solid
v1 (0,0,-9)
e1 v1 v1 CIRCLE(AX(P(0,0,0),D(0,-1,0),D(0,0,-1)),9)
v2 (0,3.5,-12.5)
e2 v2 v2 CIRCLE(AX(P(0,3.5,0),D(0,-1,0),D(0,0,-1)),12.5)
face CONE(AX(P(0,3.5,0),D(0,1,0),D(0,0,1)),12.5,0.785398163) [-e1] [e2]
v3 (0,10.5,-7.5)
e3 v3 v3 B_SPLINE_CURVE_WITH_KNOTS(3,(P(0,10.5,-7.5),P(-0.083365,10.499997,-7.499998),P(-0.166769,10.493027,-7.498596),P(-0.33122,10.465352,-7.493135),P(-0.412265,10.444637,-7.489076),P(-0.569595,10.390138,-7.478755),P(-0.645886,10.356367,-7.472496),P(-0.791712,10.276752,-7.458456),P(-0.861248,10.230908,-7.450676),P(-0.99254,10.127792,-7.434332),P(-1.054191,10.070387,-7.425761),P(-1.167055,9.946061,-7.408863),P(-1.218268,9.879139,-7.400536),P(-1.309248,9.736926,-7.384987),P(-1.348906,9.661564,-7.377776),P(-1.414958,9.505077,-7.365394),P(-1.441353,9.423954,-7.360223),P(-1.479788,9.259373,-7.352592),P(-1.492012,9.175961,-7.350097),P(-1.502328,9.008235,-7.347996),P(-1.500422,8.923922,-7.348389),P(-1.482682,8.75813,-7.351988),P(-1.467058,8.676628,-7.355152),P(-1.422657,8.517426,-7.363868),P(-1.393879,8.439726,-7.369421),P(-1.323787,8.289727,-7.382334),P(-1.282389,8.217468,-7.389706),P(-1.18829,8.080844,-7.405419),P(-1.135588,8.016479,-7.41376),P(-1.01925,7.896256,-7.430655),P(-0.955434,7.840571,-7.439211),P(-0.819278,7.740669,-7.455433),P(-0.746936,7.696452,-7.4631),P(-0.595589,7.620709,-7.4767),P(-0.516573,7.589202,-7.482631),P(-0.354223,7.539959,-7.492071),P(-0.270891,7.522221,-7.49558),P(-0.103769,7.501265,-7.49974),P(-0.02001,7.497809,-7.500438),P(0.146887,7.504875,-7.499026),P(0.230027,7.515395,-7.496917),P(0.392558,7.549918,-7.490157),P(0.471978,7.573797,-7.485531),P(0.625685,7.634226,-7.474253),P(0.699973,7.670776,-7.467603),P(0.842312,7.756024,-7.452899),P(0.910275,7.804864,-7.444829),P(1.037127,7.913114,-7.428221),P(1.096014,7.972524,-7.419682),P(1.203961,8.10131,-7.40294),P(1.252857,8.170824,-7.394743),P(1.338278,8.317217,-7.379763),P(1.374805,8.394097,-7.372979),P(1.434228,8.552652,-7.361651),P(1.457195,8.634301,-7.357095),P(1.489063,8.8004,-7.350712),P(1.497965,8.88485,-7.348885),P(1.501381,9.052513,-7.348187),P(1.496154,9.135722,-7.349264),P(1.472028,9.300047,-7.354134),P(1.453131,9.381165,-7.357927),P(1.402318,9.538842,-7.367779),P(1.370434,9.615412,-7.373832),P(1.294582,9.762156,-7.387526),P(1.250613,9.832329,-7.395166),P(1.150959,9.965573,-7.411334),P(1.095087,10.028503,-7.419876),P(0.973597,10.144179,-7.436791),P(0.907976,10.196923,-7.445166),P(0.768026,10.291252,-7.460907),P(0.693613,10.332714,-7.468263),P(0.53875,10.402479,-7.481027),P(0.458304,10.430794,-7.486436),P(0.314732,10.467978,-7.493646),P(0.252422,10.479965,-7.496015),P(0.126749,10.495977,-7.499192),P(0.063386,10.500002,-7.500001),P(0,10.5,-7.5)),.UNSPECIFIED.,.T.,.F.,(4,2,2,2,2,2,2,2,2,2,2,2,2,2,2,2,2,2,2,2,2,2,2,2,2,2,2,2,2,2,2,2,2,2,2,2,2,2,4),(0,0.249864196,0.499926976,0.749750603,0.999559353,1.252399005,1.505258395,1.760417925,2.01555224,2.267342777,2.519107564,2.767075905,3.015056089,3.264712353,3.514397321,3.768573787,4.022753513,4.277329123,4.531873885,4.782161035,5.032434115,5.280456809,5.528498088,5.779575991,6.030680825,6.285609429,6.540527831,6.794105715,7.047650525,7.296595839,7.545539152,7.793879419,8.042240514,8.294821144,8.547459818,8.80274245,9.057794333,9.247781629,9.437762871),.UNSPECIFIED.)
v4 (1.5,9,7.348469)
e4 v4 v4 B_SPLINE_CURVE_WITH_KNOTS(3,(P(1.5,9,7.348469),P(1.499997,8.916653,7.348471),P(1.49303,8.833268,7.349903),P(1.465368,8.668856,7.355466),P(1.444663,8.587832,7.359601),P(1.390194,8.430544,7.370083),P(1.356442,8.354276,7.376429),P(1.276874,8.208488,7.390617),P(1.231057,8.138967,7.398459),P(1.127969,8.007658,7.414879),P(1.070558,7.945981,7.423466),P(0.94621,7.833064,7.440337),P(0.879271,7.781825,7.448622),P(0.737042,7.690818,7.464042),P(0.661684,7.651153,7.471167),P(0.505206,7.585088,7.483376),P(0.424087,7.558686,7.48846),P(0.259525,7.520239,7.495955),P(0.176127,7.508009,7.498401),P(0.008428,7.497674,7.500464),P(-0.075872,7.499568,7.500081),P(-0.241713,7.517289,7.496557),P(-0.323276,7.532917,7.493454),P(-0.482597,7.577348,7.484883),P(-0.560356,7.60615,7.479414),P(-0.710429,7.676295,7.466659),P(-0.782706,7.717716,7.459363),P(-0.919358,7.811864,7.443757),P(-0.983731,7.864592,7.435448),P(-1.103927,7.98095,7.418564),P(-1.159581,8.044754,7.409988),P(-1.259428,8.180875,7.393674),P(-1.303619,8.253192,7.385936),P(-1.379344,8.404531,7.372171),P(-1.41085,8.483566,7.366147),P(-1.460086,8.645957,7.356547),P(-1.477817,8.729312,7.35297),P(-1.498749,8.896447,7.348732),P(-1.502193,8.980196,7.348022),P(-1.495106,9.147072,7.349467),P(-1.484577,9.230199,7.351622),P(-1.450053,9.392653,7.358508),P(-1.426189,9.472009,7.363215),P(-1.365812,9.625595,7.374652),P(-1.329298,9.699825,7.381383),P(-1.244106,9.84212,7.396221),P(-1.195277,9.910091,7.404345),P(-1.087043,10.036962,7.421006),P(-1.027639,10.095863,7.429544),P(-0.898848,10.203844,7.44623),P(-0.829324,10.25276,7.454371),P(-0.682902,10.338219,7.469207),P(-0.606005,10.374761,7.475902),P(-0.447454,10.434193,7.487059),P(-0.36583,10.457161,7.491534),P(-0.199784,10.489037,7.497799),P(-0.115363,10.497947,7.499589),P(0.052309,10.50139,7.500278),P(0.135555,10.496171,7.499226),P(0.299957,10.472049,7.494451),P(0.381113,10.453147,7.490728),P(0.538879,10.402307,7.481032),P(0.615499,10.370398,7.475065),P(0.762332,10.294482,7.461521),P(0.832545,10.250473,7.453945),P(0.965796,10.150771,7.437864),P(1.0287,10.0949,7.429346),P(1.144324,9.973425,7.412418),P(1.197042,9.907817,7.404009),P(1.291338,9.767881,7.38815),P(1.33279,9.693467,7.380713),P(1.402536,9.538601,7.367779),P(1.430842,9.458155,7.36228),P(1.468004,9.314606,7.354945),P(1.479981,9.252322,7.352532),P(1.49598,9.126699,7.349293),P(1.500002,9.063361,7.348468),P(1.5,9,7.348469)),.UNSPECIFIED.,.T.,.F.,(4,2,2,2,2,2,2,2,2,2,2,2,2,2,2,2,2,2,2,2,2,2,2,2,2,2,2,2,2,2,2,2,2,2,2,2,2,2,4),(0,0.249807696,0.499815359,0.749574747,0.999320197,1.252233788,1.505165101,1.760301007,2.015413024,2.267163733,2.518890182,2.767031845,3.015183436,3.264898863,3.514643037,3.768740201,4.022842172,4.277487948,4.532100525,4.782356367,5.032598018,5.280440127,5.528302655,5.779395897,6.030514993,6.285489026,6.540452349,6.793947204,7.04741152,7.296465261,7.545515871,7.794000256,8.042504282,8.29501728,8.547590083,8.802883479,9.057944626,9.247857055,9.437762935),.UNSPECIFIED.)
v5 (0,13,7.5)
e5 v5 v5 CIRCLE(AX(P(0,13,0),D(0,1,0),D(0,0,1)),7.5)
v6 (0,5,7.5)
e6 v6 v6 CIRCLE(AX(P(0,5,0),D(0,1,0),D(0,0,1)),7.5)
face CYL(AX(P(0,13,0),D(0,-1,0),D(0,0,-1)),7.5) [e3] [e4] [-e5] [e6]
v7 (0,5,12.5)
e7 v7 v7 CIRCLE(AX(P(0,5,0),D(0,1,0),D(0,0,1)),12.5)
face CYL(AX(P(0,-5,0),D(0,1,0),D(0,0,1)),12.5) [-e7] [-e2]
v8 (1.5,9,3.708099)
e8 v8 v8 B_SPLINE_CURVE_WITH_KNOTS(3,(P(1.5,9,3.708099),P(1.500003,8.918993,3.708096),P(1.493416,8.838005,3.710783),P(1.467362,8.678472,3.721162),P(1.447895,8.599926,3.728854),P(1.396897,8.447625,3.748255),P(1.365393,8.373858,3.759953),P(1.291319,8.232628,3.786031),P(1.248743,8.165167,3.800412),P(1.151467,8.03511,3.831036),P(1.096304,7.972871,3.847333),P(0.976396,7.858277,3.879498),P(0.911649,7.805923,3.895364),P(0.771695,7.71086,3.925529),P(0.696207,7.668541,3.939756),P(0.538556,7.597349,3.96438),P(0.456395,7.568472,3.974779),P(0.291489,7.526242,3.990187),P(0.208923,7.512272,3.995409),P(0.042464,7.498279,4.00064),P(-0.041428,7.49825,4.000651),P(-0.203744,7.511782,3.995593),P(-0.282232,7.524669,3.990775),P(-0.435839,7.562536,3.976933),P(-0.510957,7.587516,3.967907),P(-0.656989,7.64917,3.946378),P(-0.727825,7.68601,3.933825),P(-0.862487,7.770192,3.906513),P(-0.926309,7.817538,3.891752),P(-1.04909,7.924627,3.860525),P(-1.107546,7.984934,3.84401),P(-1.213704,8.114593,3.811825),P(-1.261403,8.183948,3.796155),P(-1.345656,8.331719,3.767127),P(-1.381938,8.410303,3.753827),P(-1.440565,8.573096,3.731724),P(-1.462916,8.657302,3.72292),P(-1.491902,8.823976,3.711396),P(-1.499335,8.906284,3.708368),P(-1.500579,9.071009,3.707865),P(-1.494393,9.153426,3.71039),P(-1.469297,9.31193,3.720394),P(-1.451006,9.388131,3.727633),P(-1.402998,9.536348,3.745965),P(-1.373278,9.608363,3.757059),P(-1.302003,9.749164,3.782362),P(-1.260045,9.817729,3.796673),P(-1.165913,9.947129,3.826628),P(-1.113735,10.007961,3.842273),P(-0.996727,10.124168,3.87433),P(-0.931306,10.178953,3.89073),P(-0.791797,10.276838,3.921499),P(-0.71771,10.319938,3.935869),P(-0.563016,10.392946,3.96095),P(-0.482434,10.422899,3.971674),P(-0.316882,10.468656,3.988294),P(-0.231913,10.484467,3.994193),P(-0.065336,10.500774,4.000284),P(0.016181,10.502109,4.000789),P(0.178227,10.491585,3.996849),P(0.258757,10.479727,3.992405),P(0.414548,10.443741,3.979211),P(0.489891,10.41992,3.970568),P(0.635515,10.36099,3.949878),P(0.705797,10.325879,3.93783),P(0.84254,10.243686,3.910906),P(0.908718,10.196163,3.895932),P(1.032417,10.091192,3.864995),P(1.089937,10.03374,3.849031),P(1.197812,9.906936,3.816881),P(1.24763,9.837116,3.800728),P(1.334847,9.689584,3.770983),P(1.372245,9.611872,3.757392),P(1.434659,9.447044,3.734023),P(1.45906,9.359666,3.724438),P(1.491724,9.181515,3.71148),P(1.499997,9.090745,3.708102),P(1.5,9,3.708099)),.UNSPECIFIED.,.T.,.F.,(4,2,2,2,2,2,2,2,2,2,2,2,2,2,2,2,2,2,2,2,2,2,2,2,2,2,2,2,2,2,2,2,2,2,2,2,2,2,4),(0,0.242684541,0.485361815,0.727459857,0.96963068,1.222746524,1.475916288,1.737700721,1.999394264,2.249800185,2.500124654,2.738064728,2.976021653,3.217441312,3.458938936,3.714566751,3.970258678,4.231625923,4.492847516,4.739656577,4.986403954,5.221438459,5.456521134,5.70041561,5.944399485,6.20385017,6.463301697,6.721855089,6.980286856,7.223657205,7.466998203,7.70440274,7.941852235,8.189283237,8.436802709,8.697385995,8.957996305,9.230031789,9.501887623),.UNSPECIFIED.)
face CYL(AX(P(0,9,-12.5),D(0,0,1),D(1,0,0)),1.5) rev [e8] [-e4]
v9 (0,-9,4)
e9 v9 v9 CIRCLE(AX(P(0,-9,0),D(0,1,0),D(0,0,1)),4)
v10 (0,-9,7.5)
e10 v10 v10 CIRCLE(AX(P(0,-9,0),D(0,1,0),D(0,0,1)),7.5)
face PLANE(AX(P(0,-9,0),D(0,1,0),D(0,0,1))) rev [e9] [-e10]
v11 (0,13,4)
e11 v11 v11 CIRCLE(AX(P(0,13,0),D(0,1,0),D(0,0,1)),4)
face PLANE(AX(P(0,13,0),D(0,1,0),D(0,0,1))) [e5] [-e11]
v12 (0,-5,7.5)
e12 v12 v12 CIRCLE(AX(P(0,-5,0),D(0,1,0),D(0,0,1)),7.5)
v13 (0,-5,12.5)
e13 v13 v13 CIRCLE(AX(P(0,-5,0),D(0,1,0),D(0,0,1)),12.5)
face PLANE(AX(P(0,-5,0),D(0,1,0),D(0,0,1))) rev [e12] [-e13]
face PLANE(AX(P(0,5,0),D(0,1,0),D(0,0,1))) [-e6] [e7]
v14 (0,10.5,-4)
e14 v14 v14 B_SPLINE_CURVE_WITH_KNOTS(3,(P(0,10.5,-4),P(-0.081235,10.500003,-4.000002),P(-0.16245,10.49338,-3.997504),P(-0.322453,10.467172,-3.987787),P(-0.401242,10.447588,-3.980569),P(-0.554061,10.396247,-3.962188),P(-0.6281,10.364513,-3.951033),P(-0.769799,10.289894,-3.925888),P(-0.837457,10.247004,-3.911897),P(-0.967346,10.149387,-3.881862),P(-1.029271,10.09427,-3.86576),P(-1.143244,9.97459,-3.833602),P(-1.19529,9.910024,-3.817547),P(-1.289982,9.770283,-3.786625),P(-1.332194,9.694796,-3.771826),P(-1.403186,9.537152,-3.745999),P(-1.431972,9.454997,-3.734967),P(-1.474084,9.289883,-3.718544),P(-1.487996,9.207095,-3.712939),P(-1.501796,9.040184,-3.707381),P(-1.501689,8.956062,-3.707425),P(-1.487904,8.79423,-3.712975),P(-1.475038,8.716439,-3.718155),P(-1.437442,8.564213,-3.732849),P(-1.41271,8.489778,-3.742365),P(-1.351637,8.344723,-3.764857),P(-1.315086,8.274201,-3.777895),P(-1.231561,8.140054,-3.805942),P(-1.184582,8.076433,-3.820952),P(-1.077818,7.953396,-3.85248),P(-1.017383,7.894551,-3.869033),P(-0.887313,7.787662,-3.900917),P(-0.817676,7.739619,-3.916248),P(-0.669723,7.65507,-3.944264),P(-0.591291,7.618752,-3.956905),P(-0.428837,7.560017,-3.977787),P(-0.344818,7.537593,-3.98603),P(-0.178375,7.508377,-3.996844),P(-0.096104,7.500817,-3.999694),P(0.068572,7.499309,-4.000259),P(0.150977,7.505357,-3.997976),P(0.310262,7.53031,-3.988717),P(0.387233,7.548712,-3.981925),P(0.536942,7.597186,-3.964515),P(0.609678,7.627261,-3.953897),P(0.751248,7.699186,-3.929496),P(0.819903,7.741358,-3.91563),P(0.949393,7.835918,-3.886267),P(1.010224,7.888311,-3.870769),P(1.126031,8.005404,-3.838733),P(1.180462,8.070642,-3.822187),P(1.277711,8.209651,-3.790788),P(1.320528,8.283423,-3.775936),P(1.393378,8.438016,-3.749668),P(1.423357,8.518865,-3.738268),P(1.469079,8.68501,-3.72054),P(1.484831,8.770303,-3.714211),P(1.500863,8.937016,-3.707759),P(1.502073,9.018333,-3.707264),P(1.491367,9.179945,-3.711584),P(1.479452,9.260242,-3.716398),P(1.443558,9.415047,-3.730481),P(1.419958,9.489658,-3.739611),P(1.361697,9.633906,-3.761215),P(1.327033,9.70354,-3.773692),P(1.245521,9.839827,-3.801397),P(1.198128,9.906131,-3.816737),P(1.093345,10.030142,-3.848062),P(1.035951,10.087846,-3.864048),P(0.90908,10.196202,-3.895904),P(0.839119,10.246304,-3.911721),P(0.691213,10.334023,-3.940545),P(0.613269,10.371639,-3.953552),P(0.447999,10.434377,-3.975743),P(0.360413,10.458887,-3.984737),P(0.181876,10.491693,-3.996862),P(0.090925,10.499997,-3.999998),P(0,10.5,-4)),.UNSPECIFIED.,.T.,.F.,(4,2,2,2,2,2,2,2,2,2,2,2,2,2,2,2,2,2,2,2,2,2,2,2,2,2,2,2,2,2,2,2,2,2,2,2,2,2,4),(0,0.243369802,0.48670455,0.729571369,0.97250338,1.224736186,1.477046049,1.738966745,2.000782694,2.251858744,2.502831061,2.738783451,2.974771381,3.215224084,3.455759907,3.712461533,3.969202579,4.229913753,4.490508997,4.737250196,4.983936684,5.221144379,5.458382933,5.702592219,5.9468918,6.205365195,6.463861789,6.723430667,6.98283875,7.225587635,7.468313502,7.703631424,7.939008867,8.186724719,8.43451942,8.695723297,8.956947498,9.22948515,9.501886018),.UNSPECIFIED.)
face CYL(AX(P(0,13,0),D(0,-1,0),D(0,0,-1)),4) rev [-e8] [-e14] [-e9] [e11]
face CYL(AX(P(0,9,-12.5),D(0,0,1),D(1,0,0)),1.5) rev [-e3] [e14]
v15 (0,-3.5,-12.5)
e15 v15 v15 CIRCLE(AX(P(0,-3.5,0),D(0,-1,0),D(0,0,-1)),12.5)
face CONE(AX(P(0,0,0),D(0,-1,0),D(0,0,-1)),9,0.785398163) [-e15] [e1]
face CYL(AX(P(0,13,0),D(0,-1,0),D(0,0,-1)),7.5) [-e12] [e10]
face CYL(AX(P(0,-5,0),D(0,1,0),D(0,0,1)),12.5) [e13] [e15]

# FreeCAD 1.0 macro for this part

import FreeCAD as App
import Part
import Sketcher

V = App.Vector


def add_polygon(sketch, points):
    """Adds a closed chain of lines whose ends are joined by coincident constraints."""
    first, n = sketch.GeometryCount, len(points)
    for a, b in zip(points, points[1:] + points[:1]):
        sketch.addGeometry(Part.LineSegment(App.Vector(*a, 0), App.Vector(*b, 0)), False)
    for i in range(n):
        sketch.addConstraint(Sketcher.Constraint("Coincident", first + i, 2, first + (i + 1) % n, 1))

doc = App.newDocument("Part")
body = doc.addObject("PartDesign::Body", "Body")

# Sketch on XZ plane
sketch1 = body.newObject("Sketcher::SketchObject", "Sketch")
sketch1.AttachmentSupport = (doc.getObject("XZ_Plane"), [""])
sketch1.MapMode = "FlatFace"
sketch1.addGeometry(Part.Circle(V(0, 0, 0), V(0, 0, 1), 7.5), False)
sketch1.addGeometry(Part.Circle(V(0, 0, 0), V(0, 0, 1), 4), False)
sketch1.addConstraint(Sketcher.Constraint("Coincident", 0, 3, -1, 1))
sketch1.addConstraint(Sketcher.Constraint("Coincident", 1, 3, -1, 1))
sketch1.addConstraint(Sketcher.Constraint("Diameter", 0, 15.0))
sketch1.addConstraint(Sketcher.Constraint("Diameter", 1, 8.0))
pad1 = body.newObject("PartDesign::Pad", "Pad")
pad1.Profile = sketch1
pad1.Type = "TwoLengths"
pad1.Length = 13
pad1.Length2 = 9
pad1.Reversed = True

# Sketch on XZ plane
sketch2 = body.newObject("Sketcher::SketchObject", "Sketch001")
sketch2.AttachmentSupport = (doc.getObject("XZ_Plane"), [""])
sketch2.MapMode = "FlatFace"
sketch2.addGeometry(Part.Circle(V(0, 0, 0), V(0, 0, 1), 12), False)
sketch2.addGeometry(Part.Circle(V(0, 0, 0), V(0, 0, 1), 8), False)
sketch2.addConstraint(Sketcher.Constraint("Coincident", 0, 3, -1, 1))
sketch2.addConstraint(Sketcher.Constraint("Coincident", 1, 3, -1, 1))
sketch2.addConstraint(Sketcher.Constraint("Diameter", 0, 25.0))
sketch2.addConstraint(Sketcher.Constraint("Diameter", 1, 15.0))
pad2 = body.newObject("PartDesign::Pad", "Pad001")
pad2.Profile = sketch2
pad2.Type = "TwoLengths"
pad2.Length = 5
pad2.Length2 = 5
pad2.Reversed = True

# Sketch on YZ plane
sketch3 = body.newObject("Sketcher::SketchObject", "Sketch002")
sketch3.AttachmentSupport = (doc.getObject("YZ_Plane"), [""])
sketch3.MapMode = "FlatFace"
add_polygon(sketch3, [(0, 9), (3.5, 12.5), (-3.5, 12.5)])  # lines 0-2
sketch3.addConstraint(Sketcher.Constraint("Horizontal", 1))
sketch3.addConstraint(Sketcher.Constraint("PointOnObject", 2, 2, -2))
sketch3.addConstraint(Sketcher.Constraint("Perpendicular", 0, 2))
sketch3.addConstraint(Sketcher.Constraint("Equal", 0, 2))
sketch3.addConstraint(Sketcher.Constraint("DistanceX", 1, 2, 1, 1, 7.0))
sketch3.addConstraint(Sketcher.Constraint("DistanceY", -1, 1, 2, 2, 9.0))
groove = body.newObject("PartDesign::Groove", "Groove")
groove.Profile = sketch3
groove.ReferenceAxis = (sketch3, ["H_Axis"])
groove.Angle = 360

# Sketch on XY plane
sketch4 = body.newObject("Sketcher::SketchObject", "Sketch003")
sketch4.AttachmentSupport = (doc.getObject("XY_Plane"), [""])
sketch4.MapMode = "FlatFace"
sketch4.addGeometry(Part.Circle(V(0, 9, 0), V(0, 0, 1), 1.5), False)
sketch4.addConstraint(Sketcher.Constraint("PointOnObject", 0, 3, -2))
sketch4.addConstraint(Sketcher.Constraint("Diameter", 0, 3.0))
sketch4.addConstraint(Sketcher.Constraint("DistanceY", -1, 1, 0, 3, 9.0))
pocket1 = body.newObject("PartDesign::Pocket", "Pocket")
pocket1.Profile = sketch4
pocket1.Type = "ThroughAll"
pocket1.Midplane = True

doc.recompute()
